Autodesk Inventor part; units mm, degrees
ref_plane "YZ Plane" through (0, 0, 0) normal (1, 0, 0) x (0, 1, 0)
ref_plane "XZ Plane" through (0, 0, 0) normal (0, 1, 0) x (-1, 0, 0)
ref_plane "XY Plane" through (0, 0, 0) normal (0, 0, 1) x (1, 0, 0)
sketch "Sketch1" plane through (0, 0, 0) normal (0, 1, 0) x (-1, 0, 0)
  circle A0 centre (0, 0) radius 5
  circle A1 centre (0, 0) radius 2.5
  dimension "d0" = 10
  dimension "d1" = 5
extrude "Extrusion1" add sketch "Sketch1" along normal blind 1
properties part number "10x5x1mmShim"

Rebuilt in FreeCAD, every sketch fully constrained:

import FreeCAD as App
import Part
import Sketcher

V = App.Vector

doc = App.newDocument("Part")
body = doc.addObject("PartDesign::Body", "Body")

# Sketch on XZ plane
sketch1 = body.newObject("Sketcher::SketchObject", "Sketch")
sketch1.AttachmentSupport = (doc.getObject("XZ_Plane"), [""])
sketch1.MapMode = "FlatFace"
sketch1.addGeometry([
    Part.Circle(V(0, 0, 0), V(0, 0, 1), 5),
    Part.Circle(V(0, 0, 0), V(0, 0, 1), 2.5),
], False)
sketch1.addConstraint([
    Sketcher.Constraint("Coincident", 0, 3, -1, 1),
    Sketcher.Constraint("Coincident", 1, 3, -1, 1),
    Sketcher.Constraint("Diameter", 0, 10.0),
    Sketcher.Constraint("Diameter", 1, 5.0),
])
pad1 = body.newObject("PartDesign::Pad", "Pad")
pad1.Profile = sketch1
pad1.Length = 1
pad1.Reversed = True

doc.recompute()
